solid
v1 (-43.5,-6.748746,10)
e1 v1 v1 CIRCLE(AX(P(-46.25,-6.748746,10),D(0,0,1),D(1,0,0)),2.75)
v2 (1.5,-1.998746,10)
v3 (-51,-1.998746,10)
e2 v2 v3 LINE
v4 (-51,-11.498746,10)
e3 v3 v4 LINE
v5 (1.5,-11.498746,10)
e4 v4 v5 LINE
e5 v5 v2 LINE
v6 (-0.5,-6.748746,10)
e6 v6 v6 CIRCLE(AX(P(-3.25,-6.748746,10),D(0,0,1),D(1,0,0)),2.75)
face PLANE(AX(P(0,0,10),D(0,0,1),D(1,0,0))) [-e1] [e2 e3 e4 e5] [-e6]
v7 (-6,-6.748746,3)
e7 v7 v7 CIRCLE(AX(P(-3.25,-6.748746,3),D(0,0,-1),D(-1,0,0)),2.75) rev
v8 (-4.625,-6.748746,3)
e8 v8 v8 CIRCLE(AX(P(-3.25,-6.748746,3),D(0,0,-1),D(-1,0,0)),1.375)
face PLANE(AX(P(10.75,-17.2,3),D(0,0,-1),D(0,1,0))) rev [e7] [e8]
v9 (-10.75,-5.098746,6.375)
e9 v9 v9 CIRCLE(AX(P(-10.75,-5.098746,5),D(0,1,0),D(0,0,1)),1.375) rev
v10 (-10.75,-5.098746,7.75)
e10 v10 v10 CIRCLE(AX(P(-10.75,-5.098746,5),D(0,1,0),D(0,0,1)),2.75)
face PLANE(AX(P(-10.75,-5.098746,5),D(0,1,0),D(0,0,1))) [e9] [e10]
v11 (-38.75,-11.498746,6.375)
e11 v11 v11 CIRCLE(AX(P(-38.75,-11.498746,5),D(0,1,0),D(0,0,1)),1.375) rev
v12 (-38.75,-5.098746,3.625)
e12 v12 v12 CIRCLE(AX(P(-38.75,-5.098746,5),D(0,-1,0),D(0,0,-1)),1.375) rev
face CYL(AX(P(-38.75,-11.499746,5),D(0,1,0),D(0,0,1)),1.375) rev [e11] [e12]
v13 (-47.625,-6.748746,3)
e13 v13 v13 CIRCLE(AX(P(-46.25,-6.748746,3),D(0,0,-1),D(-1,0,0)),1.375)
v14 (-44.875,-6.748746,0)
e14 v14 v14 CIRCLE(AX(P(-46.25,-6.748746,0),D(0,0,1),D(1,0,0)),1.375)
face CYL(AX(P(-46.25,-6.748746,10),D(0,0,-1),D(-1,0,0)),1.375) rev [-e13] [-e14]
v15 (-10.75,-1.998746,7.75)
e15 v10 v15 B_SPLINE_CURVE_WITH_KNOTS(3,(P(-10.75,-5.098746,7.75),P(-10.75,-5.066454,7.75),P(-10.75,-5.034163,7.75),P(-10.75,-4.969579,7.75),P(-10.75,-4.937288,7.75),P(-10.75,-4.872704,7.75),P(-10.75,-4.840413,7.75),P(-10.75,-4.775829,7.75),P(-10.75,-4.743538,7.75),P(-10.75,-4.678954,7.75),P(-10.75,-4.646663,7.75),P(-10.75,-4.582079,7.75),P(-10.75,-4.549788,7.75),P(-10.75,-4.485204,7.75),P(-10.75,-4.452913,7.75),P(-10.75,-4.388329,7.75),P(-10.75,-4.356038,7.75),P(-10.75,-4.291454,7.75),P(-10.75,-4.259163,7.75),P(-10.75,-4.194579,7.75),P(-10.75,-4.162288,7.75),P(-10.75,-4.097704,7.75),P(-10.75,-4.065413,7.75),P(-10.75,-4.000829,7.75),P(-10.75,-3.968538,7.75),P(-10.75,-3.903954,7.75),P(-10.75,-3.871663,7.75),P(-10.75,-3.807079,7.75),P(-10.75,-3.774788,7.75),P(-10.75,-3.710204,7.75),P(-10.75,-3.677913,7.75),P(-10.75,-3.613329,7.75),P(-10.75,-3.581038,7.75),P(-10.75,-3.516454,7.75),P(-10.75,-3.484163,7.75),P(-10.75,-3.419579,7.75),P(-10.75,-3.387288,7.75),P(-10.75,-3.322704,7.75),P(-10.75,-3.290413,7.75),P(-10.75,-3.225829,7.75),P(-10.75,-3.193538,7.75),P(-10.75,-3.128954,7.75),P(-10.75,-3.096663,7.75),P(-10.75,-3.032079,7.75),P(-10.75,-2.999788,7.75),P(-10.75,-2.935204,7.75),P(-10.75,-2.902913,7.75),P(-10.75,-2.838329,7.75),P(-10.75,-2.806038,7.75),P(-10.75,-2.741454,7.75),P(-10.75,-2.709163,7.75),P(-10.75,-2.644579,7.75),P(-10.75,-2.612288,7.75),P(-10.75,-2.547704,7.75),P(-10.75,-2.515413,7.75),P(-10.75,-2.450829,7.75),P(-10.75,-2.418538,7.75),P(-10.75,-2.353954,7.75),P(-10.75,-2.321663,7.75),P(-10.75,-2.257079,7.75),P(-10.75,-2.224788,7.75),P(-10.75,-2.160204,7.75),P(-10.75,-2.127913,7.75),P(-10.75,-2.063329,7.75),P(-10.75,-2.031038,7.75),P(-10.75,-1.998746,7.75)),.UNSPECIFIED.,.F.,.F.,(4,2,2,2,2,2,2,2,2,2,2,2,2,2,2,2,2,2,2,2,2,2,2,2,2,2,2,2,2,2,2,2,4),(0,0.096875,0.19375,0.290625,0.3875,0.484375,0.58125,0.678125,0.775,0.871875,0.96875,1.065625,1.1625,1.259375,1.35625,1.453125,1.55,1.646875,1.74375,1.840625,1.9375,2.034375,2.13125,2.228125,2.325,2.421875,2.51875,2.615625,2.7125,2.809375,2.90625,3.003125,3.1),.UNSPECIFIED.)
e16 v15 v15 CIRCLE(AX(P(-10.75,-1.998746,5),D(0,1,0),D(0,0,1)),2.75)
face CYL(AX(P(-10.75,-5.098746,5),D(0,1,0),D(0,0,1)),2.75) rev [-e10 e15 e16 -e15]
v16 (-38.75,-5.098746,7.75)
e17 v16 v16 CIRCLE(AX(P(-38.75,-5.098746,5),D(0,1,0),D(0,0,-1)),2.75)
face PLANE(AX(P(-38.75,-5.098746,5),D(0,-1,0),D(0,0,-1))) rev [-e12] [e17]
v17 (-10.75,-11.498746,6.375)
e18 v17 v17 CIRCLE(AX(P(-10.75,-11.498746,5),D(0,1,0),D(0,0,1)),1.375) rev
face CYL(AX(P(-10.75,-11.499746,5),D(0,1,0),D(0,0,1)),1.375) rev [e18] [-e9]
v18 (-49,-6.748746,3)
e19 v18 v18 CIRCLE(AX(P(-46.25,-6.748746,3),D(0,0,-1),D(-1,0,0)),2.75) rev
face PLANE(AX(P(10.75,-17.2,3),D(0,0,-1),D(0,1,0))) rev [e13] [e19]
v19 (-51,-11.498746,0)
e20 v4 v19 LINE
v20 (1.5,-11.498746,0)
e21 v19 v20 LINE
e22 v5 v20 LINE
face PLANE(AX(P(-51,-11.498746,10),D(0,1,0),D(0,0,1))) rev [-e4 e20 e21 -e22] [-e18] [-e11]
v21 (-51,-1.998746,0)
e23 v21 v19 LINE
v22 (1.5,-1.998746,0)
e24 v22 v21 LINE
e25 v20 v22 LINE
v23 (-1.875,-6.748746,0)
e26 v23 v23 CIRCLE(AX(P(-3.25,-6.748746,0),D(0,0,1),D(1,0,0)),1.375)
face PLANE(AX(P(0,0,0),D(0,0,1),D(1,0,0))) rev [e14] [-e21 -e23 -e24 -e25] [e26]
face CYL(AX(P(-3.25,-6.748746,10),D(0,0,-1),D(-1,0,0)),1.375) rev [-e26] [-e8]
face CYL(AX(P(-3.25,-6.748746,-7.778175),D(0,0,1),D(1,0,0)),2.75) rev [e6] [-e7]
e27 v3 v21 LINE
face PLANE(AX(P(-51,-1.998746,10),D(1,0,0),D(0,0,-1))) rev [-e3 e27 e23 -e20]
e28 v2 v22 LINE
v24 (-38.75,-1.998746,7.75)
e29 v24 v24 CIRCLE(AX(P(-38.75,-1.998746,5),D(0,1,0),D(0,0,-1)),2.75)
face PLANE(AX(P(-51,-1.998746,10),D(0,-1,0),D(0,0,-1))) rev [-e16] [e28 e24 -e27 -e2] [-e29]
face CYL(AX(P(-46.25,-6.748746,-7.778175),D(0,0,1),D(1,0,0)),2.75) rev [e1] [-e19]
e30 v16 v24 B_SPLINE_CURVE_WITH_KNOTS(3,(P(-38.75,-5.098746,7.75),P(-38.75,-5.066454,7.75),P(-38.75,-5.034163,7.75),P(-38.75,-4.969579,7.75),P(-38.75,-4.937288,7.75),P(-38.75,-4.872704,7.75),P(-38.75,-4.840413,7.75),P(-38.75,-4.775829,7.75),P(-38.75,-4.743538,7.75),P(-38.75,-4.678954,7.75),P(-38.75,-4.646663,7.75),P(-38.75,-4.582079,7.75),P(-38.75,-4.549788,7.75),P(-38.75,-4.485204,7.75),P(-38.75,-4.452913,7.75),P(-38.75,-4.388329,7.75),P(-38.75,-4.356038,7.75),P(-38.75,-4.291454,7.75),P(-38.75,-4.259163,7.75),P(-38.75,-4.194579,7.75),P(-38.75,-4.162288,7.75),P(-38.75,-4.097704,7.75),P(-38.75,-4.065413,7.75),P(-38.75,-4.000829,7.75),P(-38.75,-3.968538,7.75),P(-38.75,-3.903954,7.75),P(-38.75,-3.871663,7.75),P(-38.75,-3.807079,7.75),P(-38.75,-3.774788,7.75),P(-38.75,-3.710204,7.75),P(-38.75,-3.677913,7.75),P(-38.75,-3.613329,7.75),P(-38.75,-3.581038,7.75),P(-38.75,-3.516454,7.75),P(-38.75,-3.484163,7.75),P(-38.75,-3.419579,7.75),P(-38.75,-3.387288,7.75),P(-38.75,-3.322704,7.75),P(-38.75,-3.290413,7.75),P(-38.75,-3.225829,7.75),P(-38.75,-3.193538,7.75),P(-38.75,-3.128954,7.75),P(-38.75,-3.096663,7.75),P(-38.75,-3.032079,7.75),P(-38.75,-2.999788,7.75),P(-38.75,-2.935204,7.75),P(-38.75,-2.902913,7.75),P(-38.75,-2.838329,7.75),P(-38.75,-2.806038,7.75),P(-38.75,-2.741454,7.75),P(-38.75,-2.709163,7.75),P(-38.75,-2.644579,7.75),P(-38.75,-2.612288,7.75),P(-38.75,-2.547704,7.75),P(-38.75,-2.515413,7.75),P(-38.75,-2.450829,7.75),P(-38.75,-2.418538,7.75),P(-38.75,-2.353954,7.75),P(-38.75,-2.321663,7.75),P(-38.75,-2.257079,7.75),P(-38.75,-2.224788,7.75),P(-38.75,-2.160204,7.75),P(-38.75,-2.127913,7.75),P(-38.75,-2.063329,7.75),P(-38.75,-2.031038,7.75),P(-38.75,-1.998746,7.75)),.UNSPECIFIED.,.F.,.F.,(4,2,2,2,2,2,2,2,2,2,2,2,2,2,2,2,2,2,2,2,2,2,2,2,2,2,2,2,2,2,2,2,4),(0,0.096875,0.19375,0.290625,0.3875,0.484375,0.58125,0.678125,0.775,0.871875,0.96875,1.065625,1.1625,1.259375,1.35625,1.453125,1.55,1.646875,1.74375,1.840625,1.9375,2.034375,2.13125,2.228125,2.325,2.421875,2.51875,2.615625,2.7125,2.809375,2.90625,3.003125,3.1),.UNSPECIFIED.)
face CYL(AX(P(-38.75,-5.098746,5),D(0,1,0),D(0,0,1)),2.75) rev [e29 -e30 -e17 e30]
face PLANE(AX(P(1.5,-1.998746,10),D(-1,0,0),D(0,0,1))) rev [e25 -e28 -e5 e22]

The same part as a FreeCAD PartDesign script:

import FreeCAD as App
import Part
import Sketcher
from FreeCAD import Vector
Q = App.Units.Quantity


def add_polygon(sketch, points):
    """Adds a closed chain of lines whose ends are joined by coincident constraints."""
    first, n = sketch.GeometryCount, len(points)
    for a, b in zip(points, points[1:] + points[:1]):
        sketch.addGeometry(Part.LineSegment(App.Vector(*a, 0), App.Vector(*b, 0)), False)
    for i in range(n):
        sketch.addConstraint(Sketcher.Constraint("Coincident", first + i, 2, first + (i + 1) % n, 1))

doc = App.newDocument("Part")
body = doc.addObject("PartDesign::Body", "Body")

# Sketch on XY plane
sketch1 = body.newObject("Sketcher::SketchObject", "Sketch")
sketch1.AttachmentSupport = (doc.getObject("XY_Plane"), [""])
sketch1.MapMode = "FlatFace"
add_polygon(sketch1, [(-51, -2), (-51, -11.5), (1.5, -11.5), (1.5, -2)])  # lines 0-3
sketch1.addGeometry(Part.Circle(Vector(-46.2, -6.7, 0), Vector(0, 0, 1), 1.4), False)  # 4
sketch1.addGeometry(Part.Circle(Vector(-3.2, -6.7, 0), Vector(0, 0, 1), 1.4), False)  # 5
sketch1.addConstraint(Sketcher.Constraint("Vertical", 0))
sketch1.addConstraint(Sketcher.Constraint("Horizontal", 1))
sketch1.addConstraint(Sketcher.Constraint("Vertical", 2))
sketch1.addConstraint(Sketcher.Constraint("Horizontal", 3))
sketch1.addConstraint(Sketcher.Constraint("Equal", 4, 5))
sketch1.addConstraint(Sketcher.Constraint("Horizontal", 4, 3, 5, 3))
sketch1.addConstraint(Sketcher.Constraint("Diameter", 4, Q("2.75 mm")))
sketch1.addConstraint(Sketcher.Constraint("DistanceX", 1, 1, 1, 2, Q("52.5 mm")))
sketch1.addConstraint(Sketcher.Constraint("DistanceY", 0, 2, 0, 1, Q("9.5 mm")))
sketch1.addConstraint(Sketcher.Constraint("DistanceX", 0, 2, -1, 1, Q("51 mm")))
sketch1.addConstraint(Sketcher.Constraint("DistanceX", 4, 3, 5, 3, Q("43 mm")))
sketch1.addConstraint(Sketcher.Constraint("DistanceX", 4, 3, -1, 1, Q("46.25 mm")))
sketch1.addConstraint(Sketcher.Constraint("DistanceY", 0, 2, 4, 3, Q("4.75 mm")))
sketch1.addConstraint(Sketcher.Constraint("DistanceY", 4, 3, -1, 1, Q("6.748746 mm")))
pad1 = body.newObject("PartDesign::Pad", "Pad")
pad1.Profile = sketch1
pad1.Length = 10

# Sketch on XY plane
sketch2 = body.newObject("Sketcher::SketchObject", "Sketch001")
sketch2.AttachmentSupport = (doc.getObject("XY_Plane"), [""])
sketch2.MapMode = "FlatFace"
sketch2.AttachmentOffset = App.Placement(Vector(0, 0, 10), App.Rotation())
sketch2.addGeometry(Part.Circle(Vector(-46.2, -6.7, 0), Vector(0, 0, 1), 2.8), False)
sketch2.addGeometry(Part.Circle(Vector(-3.2, -6.7, 0), Vector(0, 0, 1), 2.8), False)
sketch2.addConstraint(Sketcher.Constraint("Equal", 0, 1))
sketch2.addConstraint(Sketcher.Constraint("Horizontal", 0, 3, 1, 3))
sketch2.addConstraint(Sketcher.Constraint("Diameter", 0, Q("5.5 mm")))
sketch2.addConstraint(Sketcher.Constraint("DistanceX", 0, 3, 1, 3, Q("43 mm")))
sketch2.addConstraint(Sketcher.Constraint("DistanceX", 0, 3, -1, 1, Q("46.25 mm")))
sketch2.addConstraint(Sketcher.Constraint("DistanceY", 0, 3, -1, 1, Q("6.748746 mm")))
pocket1 = body.newObject("PartDesign::Pocket", "Pocket")
pocket1.Profile = sketch2
pocket1.Length = 7

# Sketch on XZ plane
sketch3 = body.newObject("Sketcher::SketchObject", "Sketch002")
sketch3.AttachmentSupport = (doc.getObject("XZ_Plane"), [""])
sketch3.MapMode = "FlatFace"
sketch3.AttachmentOffset = App.Placement(Vector(0, 0, 1.998746), App.Rotation())
sketch3.addGeometry(Part.Circle(Vector(-10.8, 5, 0), Vector(0, 0, 1), 1.4), False)
sketch3.addConstraint(Sketcher.Constraint("Diameter", 0, Q("2.75 mm")))
sketch3.addConstraint(Sketcher.Constraint("DistanceY", -1, 1, 0, 3, Q("5 mm")))
sketch3.addConstraint(Sketcher.Constraint("DistanceX", 0, 3, -1, 1, Q("10.75 mm")))
pocket2 = body.newObject("PartDesign::Pocket", "Pocket001")
pocket2.Profile = sketch3
pocket2.Type = "UpToFirst"
pocket2.Reversed = True

# Sketch on XZ plane
sketch4 = body.newObject("Sketcher::SketchObject", "Sketch003")
sketch4.AttachmentSupport = (doc.getObject("XZ_Plane"), [""])
sketch4.MapMode = "FlatFace"
sketch4.AttachmentOffset = App.Placement(Vector(0, 0, 1.998746), App.Rotation())
sketch4.addGeometry(Part.Circle(Vector(-38.8, 5, 0), Vector(0, 0, 1), 1.4), False)
sketch4.addConstraint(Sketcher.Constraint("Diameter", 0, Q("2.75 mm")))
sketch4.addConstraint(Sketcher.Constraint("DistanceY", -1, 1, 0, 3, Q("5 mm")))
sketch4.addConstraint(Sketcher.Constraint("DistanceX", 0, 3, -1, 1, Q("38.75 mm")))
pocket3 = body.newObject("PartDesign::Pocket", "Pocket002")
pocket3.Profile = sketch4
pocket3.Type = "UpToFirst"
pocket3.Reversed = True

# Sketch on XZ plane
sketch5 = body.newObject("Sketcher::SketchObject", "Sketch004")
sketch5.AttachmentSupport = (doc.getObject("XZ_Plane"), [""])
sketch5.MapMode = "FlatFace"
sketch5.AttachmentOffset = App.Placement(Vector(0, 0, 1.998746), App.Rotation())
sketch5.addGeometry(Part.Circle(Vector(-10.8, 5, 0), Vector(0, 0, 1), 2.8), False)
sketch5.addGeometry(Part.Circle(Vector(-38.8, 5, 0), Vector(0, 0, 1), 2.8), False)
sketch5.addConstraint(Sketcher.Constraint("Equal", 0, 1))
sketch5.addConstraint(Sketcher.Constraint("Horizontal", 0, 3, 1, 3))
sketch5.addConstraint(Sketcher.Constraint("Diameter", 0, Q("5.5 mm")))
sketch5.addConstraint(Sketcher.Constraint("DistanceY", -1, 1, 0, 3, Q("5 mm")))
sketch5.addConstraint(Sketcher.Constraint("DistanceX", 1, 3, 0, 3, Q("28 mm")))
sketch5.addConstraint(Sketcher.Constraint("DistanceX", 0, 3, -1, 1, Q("10.75 mm")))
pocket4 = body.newObject("PartDesign::Pocket", "Pocket003")
pocket4.Profile = sketch5
pocket4.Length = 3.1
pocket4.Reversed = True

doc.recompute()
